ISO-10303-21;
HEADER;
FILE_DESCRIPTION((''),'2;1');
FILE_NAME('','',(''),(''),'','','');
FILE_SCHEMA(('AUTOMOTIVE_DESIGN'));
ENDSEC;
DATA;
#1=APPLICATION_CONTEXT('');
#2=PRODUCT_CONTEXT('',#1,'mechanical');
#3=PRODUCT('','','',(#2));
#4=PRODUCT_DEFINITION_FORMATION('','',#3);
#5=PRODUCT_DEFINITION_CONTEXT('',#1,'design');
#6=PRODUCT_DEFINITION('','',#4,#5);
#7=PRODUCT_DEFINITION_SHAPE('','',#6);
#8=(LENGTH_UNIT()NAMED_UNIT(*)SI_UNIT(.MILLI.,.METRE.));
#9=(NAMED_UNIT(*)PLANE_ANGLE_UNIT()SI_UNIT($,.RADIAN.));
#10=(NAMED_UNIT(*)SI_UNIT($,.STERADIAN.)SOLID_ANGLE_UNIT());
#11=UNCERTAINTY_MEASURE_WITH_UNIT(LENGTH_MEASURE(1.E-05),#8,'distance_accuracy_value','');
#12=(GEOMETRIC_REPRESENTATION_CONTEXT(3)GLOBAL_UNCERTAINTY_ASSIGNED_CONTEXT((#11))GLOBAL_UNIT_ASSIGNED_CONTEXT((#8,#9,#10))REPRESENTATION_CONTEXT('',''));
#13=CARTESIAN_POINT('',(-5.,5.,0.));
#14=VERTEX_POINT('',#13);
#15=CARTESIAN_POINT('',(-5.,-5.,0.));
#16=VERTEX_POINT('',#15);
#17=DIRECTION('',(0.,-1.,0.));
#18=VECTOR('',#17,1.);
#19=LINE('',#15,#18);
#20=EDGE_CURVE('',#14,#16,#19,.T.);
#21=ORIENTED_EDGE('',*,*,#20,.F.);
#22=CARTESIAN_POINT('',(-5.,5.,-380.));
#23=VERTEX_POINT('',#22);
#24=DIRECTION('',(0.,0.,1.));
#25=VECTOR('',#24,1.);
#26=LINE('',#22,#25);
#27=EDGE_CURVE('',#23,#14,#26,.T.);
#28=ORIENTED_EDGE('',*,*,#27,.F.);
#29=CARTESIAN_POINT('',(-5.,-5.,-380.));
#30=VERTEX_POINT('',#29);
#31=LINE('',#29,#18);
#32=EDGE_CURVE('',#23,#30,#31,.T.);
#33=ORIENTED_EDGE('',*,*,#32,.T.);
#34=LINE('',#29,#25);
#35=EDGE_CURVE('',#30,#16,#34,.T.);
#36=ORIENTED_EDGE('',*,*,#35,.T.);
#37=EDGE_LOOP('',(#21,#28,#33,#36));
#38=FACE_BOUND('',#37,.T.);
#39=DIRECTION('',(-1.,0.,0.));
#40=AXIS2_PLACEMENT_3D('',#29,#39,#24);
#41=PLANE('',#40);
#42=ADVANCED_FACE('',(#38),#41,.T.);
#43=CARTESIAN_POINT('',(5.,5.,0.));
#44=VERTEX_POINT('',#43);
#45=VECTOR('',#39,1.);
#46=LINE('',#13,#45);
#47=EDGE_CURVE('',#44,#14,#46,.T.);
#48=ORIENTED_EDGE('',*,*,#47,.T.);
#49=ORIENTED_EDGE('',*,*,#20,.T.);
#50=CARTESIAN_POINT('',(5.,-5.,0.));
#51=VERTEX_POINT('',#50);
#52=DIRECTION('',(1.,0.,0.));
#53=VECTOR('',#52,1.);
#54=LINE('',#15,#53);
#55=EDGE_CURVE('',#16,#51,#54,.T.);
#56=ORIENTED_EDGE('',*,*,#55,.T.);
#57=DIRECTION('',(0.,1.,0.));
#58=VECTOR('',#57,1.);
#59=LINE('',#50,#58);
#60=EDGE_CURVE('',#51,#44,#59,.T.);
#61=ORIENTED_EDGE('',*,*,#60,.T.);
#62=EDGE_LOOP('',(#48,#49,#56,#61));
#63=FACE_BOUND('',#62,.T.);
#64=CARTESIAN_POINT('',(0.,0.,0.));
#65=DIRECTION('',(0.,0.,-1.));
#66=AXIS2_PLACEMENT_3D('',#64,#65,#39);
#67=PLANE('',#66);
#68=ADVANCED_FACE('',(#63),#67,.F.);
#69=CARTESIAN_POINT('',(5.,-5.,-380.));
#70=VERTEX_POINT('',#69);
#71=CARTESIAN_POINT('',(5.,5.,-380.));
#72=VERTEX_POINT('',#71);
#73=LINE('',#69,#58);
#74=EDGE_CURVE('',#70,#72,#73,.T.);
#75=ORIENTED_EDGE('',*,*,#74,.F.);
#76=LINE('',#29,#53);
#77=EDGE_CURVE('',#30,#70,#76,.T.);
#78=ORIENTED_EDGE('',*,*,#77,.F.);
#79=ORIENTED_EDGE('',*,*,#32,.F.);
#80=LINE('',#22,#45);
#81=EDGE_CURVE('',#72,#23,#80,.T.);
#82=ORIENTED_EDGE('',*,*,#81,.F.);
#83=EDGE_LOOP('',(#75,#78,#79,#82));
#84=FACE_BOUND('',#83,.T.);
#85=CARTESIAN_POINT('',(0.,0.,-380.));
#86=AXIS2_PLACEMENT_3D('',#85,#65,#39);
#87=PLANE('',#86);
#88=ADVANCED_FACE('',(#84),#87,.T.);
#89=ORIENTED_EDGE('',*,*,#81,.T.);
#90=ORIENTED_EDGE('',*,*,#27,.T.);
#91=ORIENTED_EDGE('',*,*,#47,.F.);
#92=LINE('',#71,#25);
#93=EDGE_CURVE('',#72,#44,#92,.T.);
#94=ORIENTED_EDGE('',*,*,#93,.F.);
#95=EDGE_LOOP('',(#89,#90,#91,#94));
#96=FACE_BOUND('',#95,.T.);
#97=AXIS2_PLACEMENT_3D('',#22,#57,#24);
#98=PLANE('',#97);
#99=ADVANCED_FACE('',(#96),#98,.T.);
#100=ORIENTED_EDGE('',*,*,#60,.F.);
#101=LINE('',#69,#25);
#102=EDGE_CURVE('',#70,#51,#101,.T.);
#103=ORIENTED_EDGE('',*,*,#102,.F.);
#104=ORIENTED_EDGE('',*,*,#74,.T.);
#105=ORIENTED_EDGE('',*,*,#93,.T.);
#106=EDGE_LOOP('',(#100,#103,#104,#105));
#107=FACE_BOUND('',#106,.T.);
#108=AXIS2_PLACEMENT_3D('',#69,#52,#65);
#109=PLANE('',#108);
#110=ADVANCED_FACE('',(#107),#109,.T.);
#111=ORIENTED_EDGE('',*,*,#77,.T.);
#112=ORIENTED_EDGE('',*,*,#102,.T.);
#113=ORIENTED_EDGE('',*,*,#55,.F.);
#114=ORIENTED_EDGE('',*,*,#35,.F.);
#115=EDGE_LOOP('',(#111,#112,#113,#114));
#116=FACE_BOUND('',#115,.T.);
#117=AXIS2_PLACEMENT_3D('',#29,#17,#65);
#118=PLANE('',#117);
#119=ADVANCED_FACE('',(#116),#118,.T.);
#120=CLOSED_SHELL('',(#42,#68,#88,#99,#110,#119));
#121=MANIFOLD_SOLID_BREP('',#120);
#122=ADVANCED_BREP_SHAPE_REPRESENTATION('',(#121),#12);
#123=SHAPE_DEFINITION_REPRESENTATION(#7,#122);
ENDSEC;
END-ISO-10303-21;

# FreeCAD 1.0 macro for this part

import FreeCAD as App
import Part
import Sketcher
from FreeCAD import Vector
Q = App.Units.Quantity

doc = App.newDocument("Part")
body = doc.addObject("PartDesign::Body", "Body")

sketch1 = body.newObject("Sketcher::SketchObject", "Sketch")
sketch1.AttachmentSupport = (doc.getObject("XY_Plane"), [""])
sketch1.MapMode = "FlatFace"
sketch1.addGeometry(Part.LineSegment(Vector(-5, 5, 0), Vector(-5, -5, 0)), False)
sketch1.addGeometry(Part.LineSegment(Vector(-5, -5, 0), Vector(5, -5, 0)), False)
sketch1.addGeometry(Part.LineSegment(Vector(5, -5, 0), Vector(5, 5, 0)), False)
sketch1.addGeometry(Part.LineSegment(Vector(5, 5, 0), Vector(-5, 5, 0)), False)
sketch1.addConstraint(Sketcher.Constraint("Coincident", 0, 2, 1, 1))
sketch1.addConstraint(Sketcher.Constraint("Coincident", 1, 2, 2, 1))
sketch1.addConstraint(Sketcher.Constraint("Coincident", 2, 2, 3, 1))
sketch1.addConstraint(Sketcher.Constraint("Coincident", 3, 2, 0, 1))
sketch1.addConstraint(Sketcher.Constraint("Vertical", 0))
sketch1.addConstraint(Sketcher.Constraint("Horizontal", 1))
sketch1.addConstraint(Sketcher.Constraint("Vertical", 2))
sketch1.addConstraint(Sketcher.Constraint("Horizontal", 3))
sketch1.addConstraint(Sketcher.Constraint("Symmetric", 0, 2, 2, 2, -1, 1))
sketch1.addConstraint(Sketcher.Constraint("Equal", 3, 0))
sketch1.addConstraint(Sketcher.Constraint("DistanceX", 1, 1, 1, 2, Q("10 mm")))
pad1 = body.newObject("PartDesign::Pad", "Pad")
pad1.Profile = sketch1
pad1.Length = 380
pad1.Reversed = True

doc.recompute()
